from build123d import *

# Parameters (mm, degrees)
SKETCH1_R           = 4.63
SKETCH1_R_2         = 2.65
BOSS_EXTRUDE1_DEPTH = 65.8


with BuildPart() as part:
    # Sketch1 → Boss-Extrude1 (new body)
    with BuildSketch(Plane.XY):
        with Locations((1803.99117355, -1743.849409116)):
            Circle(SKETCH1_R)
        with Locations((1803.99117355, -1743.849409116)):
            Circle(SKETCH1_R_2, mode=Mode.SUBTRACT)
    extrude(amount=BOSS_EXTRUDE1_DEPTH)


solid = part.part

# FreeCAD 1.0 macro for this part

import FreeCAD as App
import Part
import Sketcher
Q = App.Units.Quantity

doc = App.newDocument("Part")
body = doc.addObject("PartDesign::Body", "Body")

# Sketch on XY plane
sketch1 = body.newObject("Sketcher::SketchObject", "Sketch")
sketch1.AttachmentSupport = (doc.getObject("XY_Plane"), [""])
sketch1.MapMode = "FlatFace"
sketch1.addGeometry([
    Part.Circle(App.Vector(1804, -1743.8, 0), App.Vector(0, 0, 1), 4.6),
    Part.Circle(App.Vector(1804, -1743.8, 0), App.Vector(0, 0, 1), 2.6),
], False)
sketch1.addConstraint([
    Sketcher.Constraint("Coincident", 1, 3, 0, 3),
    Sketcher.Constraint("Diameter", 1, Q("5.3 mm")),
    Sketcher.Constraint("Diameter", 0, Q("9.26 mm")),
    Sketcher.Constraint("DistanceY", 0, 3, -1, 1, Q("1743.849409 mm")),
    Sketcher.Constraint("DistanceX", -1, 1, 0, 3, Q("1803.991174 mm")),
])
pad1 = body.newObject("PartDesign::Pad", "Pad")
pad1.Profile = sketch1
pad1.Length = 65.8

doc.recompute()
